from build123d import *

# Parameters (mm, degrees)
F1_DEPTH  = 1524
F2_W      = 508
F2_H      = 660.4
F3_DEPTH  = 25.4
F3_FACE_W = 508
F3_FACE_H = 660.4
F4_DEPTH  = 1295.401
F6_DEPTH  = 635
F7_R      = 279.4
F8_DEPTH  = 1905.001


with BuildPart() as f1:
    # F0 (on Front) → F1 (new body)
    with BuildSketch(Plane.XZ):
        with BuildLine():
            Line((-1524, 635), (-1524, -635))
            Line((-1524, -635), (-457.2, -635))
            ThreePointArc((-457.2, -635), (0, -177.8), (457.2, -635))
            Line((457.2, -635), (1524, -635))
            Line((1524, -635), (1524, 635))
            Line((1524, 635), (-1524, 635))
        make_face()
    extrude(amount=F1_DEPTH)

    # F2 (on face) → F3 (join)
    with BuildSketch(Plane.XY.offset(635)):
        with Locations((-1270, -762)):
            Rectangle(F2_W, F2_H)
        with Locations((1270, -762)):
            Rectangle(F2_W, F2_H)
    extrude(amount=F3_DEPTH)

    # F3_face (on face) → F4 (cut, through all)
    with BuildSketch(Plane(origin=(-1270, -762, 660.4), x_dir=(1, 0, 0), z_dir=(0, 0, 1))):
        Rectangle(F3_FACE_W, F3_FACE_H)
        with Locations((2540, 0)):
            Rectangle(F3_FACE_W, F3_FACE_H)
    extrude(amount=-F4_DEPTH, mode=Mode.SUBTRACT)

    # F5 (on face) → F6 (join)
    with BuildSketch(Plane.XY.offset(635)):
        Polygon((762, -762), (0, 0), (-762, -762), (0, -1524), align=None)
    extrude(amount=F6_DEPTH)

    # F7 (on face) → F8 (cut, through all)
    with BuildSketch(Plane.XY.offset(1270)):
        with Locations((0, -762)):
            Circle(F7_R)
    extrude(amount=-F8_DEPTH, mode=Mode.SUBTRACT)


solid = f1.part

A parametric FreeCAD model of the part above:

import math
import FreeCAD as App
import Part
import Sketcher

V = App.Vector
Q = App.Units.Quantity

doc = App.newDocument("Part")
body = doc.addObject("PartDesign::Body", "Body")

sketch1 = doc.addObject("Sketcher::SketchObject", "Sketch")
body.addObject(sketch1)
sketch1.AttachmentSupport = (doc.XZ_Plane, [""])
sketch1.MapMode = "FlatFace"
sketch1.addGeometry(Part.LineSegment(V(-1524, 635, 0), V(-1524, -635, 0)), False)
sketch1.addGeometry(Part.LineSegment(V(-1524, -635, 0), V(-457, -635, 0)), False)
sketch1.addGeometry(Part.ArcOfCircle(Part.Circle(V(0, -635, 0), V(0, 0, 1), 457), math.radians(0), math.radians(180)), False)
sketch1.addGeometry(Part.LineSegment(V(457, -635, 0), V(1524, -635, 0)), False)
sketch1.addGeometry(Part.LineSegment(V(1524, -635, 0), V(1524, 635, 0)), False)
sketch1.addGeometry(Part.LineSegment(V(1524, 635, 0), V(-1524, 635, 0)), False)
sketch1.addConstraint(Sketcher.Constraint("Coincident", 0, 2, 1, 1))
sketch1.addConstraint(Sketcher.Constraint("Coincident", 1, 2, 2, 2))
sketch1.addConstraint(Sketcher.Constraint("Coincident", 2, 1, 3, 1))
sketch1.addConstraint(Sketcher.Constraint("Coincident", 3, 2, 4, 1))
sketch1.addConstraint(Sketcher.Constraint("Coincident", 4, 2, 5, 1))
sketch1.addConstraint(Sketcher.Constraint("Coincident", 5, 2, 0, 1))
sketch1.addConstraint(Sketcher.Constraint("Vertical", 0))
sketch1.addConstraint(Sketcher.Constraint("Horizontal", 1))
sketch1.addConstraint(Sketcher.Constraint("Horizontal", 3))
sketch1.addConstraint(Sketcher.Constraint("Vertical", 4))
sketch1.addConstraint(Sketcher.Constraint("Horizontal", 5))
sketch1.addConstraint(Sketcher.Constraint("Symmetric", 0, 2, 4, 2, -1, 1))
sketch1.addConstraint(Sketcher.Constraint("PointOnObject", 2, 3, -2))
sketch1.addConstraint(Sketcher.Constraint("Horizontal", 2, 3, 0, 2))
sketch1.addConstraint(Sketcher.Constraint("Equal", 0, 4))
sketch1.addConstraint(Sketcher.Constraint("Radius", 2, Q("18 in")))
sketch1.addConstraint(Sketcher.Constraint("DistanceX", 1, 1, 1, 2, Q("42 in")))
sketch1.addConstraint(Sketcher.Constraint("DistanceY", 0, 2, 0, 1, Q("50 in")))
pad1 = doc.addObject("PartDesign::Pad", "Pad")
body.addObject(pad1)
pad1.Profile = sketch1
pad1.Length = Q("60 in")

sketch2 = doc.addObject("Sketcher::SketchObject", "Sketch001")
body.addObject(sketch2)
sketch2.AttachmentSupport = (doc.XY_Plane, [""])
sketch2.MapMode = "FlatFace"
sketch2.AttachmentOffset = App.Placement(V(0, 0, 25 * 25.4), App.Rotation())
sketch2.addGeometry(Part.LineSegment(V(-1524, -432, 0), V(-1524, -1092, 0)), False)
sketch2.addGeometry(Part.LineSegment(V(-1524, -1092, 0), V(-1016, -1092, 0)), False)
sketch2.addGeometry(Part.LineSegment(V(-1016, -1092, 0), V(-1016, -432, 0)), False)
sketch2.addGeometry(Part.LineSegment(V(-1016, -432, 0), V(-1524, -432, 0)), False)
sketch2.addGeometry(Part.LineSegment(V(1016, -432, 0), V(1016, -1092, 0)), False)
sketch2.addGeometry(Part.LineSegment(V(1016, -1092, 0), V(1524, -1092, 0)), False)
sketch2.addGeometry(Part.LineSegment(V(1524, -1092, 0), V(1524, -432, 0)), False)
sketch2.addGeometry(Part.LineSegment(V(1524, -432, 0), V(1016, -432, 0)), False)
sketch2.addConstraint(Sketcher.Constraint("Coincident", 0, 2, 1, 1))
sketch2.addConstraint(Sketcher.Constraint("Coincident", 1, 2, 2, 1))
sketch2.addConstraint(Sketcher.Constraint("Coincident", 2, 2, 3, 1))
sketch2.addConstraint(Sketcher.Constraint("Coincident", 3, 2, 0, 1))
sketch2.addConstraint(Sketcher.Constraint("Coincident", 4, 2, 5, 1))
sketch2.addConstraint(Sketcher.Constraint("Coincident", 5, 2, 6, 1))
sketch2.addConstraint(Sketcher.Constraint("Coincident", 6, 2, 7, 1))
sketch2.addConstraint(Sketcher.Constraint("Coincident", 7, 2, 4, 1))
sketch2.addConstraint(Sketcher.Constraint("Vertical", 0))
sketch2.addConstraint(Sketcher.Constraint("Horizontal", 1))
sketch2.addConstraint(Sketcher.Constraint("Vertical", 2))
sketch2.addConstraint(Sketcher.Constraint("Horizontal", 3))
sketch2.addConstraint(Sketcher.Constraint("Vertical", 4))
sketch2.addConstraint(Sketcher.Constraint("Horizontal", 5))
sketch2.addConstraint(Sketcher.Constraint("Vertical", 6))
sketch2.addConstraint(Sketcher.Constraint("Horizontal", 7))
sketch2.addConstraint(Sketcher.Constraint("Symmetric", 1, 2, 4, 2, -2))
sketch2.addConstraint(Sketcher.Constraint("Symmetric", 3, 2, 6, 2, -2))
sketch2.addConstraint(Sketcher.Constraint("DistanceX", 1, 1, 1, 2, Q("20 in")))
sketch2.addConstraint(Sketcher.Constraint("DistanceY", 0, 2, 0, 1, Q("26 in")))
sketch2.addConstraint(Sketcher.Constraint("DistanceX", 0, 2, -1, 1, Q("60 in")))
sketch2.addConstraint(Sketcher.Constraint("DistanceY", 0, 2, -1, 1, Q("43 in")))
pad2 = doc.addObject("PartDesign::Pad", "Pad001")
body.addObject(pad2)
pad2.Profile = sketch2
pad2.Length = Q("1 in")

sketch3 = doc.addObject("Sketcher::SketchObject", "Sketch002")
body.addObject(sketch3)
sketch3.AttachmentSupport = (doc.XY_Plane, [""])
sketch3.MapMode = "FlatFace"
sketch3.AttachmentOffset = App.Placement(V(0, 0, 26 * 25.4), App.Rotation())
sketch3.addGeometry(Part.LineSegment(V(-1524, -432, 0), V(-1524, -1092, 0)), False)
sketch3.addGeometry(Part.LineSegment(V(-1524, -1092, 0), V(-1016, -1092, 0)), False)
sketch3.addGeometry(Part.LineSegment(V(-1016, -1092, 0), V(-1016, -432, 0)), False)
sketch3.addGeometry(Part.LineSegment(V(-1016, -432, 0), V(-1524, -432, 0)), False)
sketch3.addGeometry(Part.LineSegment(V(1016, -432, 0), V(1016, -1092, 0)), False)
sketch3.addGeometry(Part.LineSegment(V(1016, -1092, 0), V(1524, -1092, 0)), False)
sketch3.addGeometry(Part.LineSegment(V(1524, -1092, 0), V(1524, -432, 0)), False)
sketch3.addGeometry(Part.LineSegment(V(1524, -432, 0), V(1016, -432, 0)), False)
sketch3.addConstraint(Sketcher.Constraint("Coincident", 0, 2, 1, 1))
sketch3.addConstraint(Sketcher.Constraint("Coincident", 1, 2, 2, 1))
sketch3.addConstraint(Sketcher.Constraint("Coincident", 2, 2, 3, 1))
sketch3.addConstraint(Sketcher.Constraint("Coincident", 3, 2, 0, 1))
sketch3.addConstraint(Sketcher.Constraint("Coincident", 4, 2, 5, 1))
sketch3.addConstraint(Sketcher.Constraint("Coincident", 5, 2, 6, 1))
sketch3.addConstraint(Sketcher.Constraint("Coincident", 6, 2, 7, 1))
sketch3.addConstraint(Sketcher.Constraint("Coincident", 7, 2, 4, 1))
sketch3.addConstraint(Sketcher.Constraint("Vertical", 0))
sketch3.addConstraint(Sketcher.Constraint("Horizontal", 1))
sketch3.addConstraint(Sketcher.Constraint("Vertical", 2))
sketch3.addConstraint(Sketcher.Constraint("Horizontal", 3))
sketch3.addConstraint(Sketcher.Constraint("Vertical", 4))
sketch3.addConstraint(Sketcher.Constraint("Horizontal", 5))
sketch3.addConstraint(Sketcher.Constraint("Vertical", 6))
sketch3.addConstraint(Sketcher.Constraint("Horizontal", 7))
sketch3.addConstraint(Sketcher.Constraint("Symmetric", 1, 2, 4, 2, -2))
sketch3.addConstraint(Sketcher.Constraint("Symmetric", 3, 2, 6, 2, -2))
sketch3.addConstraint(Sketcher.Constraint("DistanceX", 1, 1, 1, 2, Q("20 in")))
sketch3.addConstraint(Sketcher.Constraint("DistanceY", 0, 2, 0, 1, Q("26 in")))
sketch3.addConstraint(Sketcher.Constraint("DistanceX", 0, 2, -1, 1, Q("60 in")))
sketch3.addConstraint(Sketcher.Constraint("DistanceY", 0, 2, -1, 1, Q("43 in")))
pocket1 = doc.addObject("PartDesign::Pocket", "Pocket")
body.addObject(pocket1)
pocket1.Profile = sketch3
pocket1.Type = "ThroughAll"

sketch4 = doc.addObject("Sketcher::SketchObject", "Sketch003")
body.addObject(sketch4)
sketch4.AttachmentSupport = (doc.XY_Plane, [""])
sketch4.MapMode = "FlatFace"
sketch4.AttachmentOffset = App.Placement(V(0, 0, 25 * 25.4), App.Rotation())
sketch4.addGeometry(Part.LineSegment(V(762, -762, 0), V(0, 0, 0)), False)
sketch4.addGeometry(Part.LineSegment(V(0, 0, 0), V(-762, -762, 0)), False)
sketch4.addGeometry(Part.LineSegment(V(-762, -762, 0), V(0, -1524, 0)), False)
sketch4.addGeometry(Part.LineSegment(V(0, -1524, 0), V(762, -762, 0)), False)
sketch4.addConstraint(Sketcher.Constraint("Coincident", 0, 2, 1, 1))
sketch4.addConstraint(Sketcher.Constraint("Coincident", 1, 2, 2, 1))
sketch4.addConstraint(Sketcher.Constraint("Coincident", 2, 2, 3, 1))
sketch4.addConstraint(Sketcher.Constraint("Coincident", 3, 2, 0, 1))
sketch4.addConstraint(Sketcher.Constraint("Coincident", 0, 2, -1, 1))
sketch4.addConstraint(Sketcher.Constraint("Symmetric", 1, 2, 3, 2, -2))
sketch4.addConstraint(Sketcher.Constraint("PointOnObject", 2, 2, -2))
sketch4.addConstraint(Sketcher.Constraint("Perpendicular", 0, 1))
sketch4.addConstraint(Sketcher.Constraint("Perpendicular", 1, 2))
sketch4.addConstraint(Sketcher.Constraint("DistanceX", 1, 2, -1, 1, Q("30 in")))
pad3 = doc.addObject("PartDesign::Pad", "Pad002")
body.addObject(pad3)
pad3.Profile = sketch4
pad3.Length = Q("25 in")

sketch5 = doc.addObject("Sketcher::SketchObject", "Sketch004")
body.addObject(sketch5)
sketch5.AttachmentSupport = (doc.XY_Plane, [""])
sketch5.MapMode = "FlatFace"
sketch5.AttachmentOffset = App.Placement(V(0, 0, 50 * 25.4), App.Rotation())
sketch5.addGeometry(Part.Circle(V(0, -762, 0), V(0, 0, 1), 279), False)
sketch5.addConstraint(Sketcher.Constraint("PointOnObject", 0, 3, -2))
sketch5.addConstraint(Sketcher.Constraint("Diameter", 0, Q("22 in")))
sketch5.addConstraint(Sketcher.Constraint("DistanceY", 0, 3, -1, 1, Q("30 in")))
pocket2 = doc.addObject("PartDesign::Pocket", "Pocket001")
body.addObject(pocket2)
pocket2.Profile = sketch5
pocket2.Type = "ThroughAll"

doc.recompute()
